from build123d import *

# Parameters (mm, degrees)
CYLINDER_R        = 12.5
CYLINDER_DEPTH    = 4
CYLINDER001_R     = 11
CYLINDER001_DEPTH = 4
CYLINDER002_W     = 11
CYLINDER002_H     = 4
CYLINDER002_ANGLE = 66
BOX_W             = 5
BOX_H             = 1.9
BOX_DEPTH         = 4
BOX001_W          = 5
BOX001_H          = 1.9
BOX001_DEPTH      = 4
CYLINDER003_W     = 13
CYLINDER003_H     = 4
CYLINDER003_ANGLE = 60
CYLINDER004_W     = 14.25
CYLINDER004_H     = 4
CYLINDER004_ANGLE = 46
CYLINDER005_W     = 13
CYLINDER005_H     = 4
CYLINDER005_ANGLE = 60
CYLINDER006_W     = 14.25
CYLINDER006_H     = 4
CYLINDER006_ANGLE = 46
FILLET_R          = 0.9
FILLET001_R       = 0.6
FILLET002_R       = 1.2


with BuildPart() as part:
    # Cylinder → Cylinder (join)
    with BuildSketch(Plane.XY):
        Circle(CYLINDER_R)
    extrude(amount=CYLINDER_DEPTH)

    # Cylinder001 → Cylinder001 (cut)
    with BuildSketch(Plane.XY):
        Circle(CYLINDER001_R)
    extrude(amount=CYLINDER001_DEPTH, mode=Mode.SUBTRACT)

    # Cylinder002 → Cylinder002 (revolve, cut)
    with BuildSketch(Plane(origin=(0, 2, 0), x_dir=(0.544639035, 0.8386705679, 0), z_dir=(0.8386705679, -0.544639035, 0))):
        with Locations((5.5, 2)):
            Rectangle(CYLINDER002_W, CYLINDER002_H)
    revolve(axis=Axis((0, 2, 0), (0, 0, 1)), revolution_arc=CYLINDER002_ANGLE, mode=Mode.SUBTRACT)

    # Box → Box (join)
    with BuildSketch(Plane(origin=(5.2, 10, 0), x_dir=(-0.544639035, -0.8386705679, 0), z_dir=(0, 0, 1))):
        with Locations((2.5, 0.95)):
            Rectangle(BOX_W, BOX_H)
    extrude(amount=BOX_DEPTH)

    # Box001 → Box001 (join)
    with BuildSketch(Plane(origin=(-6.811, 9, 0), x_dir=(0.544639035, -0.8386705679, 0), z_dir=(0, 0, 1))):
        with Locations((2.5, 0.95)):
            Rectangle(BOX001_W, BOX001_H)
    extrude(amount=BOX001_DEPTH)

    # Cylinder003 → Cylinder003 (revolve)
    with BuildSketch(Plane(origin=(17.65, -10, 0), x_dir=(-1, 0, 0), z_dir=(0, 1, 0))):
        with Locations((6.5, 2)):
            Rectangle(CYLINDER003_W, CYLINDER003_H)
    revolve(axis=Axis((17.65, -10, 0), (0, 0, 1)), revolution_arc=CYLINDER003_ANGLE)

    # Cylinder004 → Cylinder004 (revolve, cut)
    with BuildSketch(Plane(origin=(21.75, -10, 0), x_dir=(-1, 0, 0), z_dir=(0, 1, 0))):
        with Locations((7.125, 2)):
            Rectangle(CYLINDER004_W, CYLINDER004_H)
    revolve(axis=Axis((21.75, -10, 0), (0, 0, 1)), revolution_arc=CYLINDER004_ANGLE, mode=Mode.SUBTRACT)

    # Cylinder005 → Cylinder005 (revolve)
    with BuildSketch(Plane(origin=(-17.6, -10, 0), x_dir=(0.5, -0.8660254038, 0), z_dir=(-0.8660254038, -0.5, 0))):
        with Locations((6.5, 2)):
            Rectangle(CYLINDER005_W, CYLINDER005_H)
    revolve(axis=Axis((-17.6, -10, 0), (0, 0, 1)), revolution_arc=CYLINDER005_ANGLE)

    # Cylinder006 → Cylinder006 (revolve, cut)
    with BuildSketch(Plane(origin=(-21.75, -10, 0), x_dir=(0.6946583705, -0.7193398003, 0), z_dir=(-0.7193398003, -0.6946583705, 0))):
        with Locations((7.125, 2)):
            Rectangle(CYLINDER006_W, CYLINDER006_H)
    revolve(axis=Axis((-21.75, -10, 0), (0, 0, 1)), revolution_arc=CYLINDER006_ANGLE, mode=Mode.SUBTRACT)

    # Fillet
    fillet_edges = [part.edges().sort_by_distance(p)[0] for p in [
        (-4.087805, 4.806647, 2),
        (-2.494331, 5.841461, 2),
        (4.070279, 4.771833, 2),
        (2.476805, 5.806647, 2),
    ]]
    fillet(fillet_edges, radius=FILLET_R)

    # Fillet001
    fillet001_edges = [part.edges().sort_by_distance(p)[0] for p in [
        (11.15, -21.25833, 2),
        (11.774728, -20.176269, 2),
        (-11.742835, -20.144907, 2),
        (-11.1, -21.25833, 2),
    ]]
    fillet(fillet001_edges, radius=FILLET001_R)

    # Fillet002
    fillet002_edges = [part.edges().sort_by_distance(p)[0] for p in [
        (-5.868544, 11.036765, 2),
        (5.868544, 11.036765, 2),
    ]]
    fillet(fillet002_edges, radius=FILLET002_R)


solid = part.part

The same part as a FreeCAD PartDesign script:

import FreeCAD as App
import Part
import Sketcher
Q = App.Units.Quantity


def edges_at(feature, points):
    """Names of the edges that pass closest to the given points."""
    edges = feature.Shape.Edges
    near = lambda p: min(range(len(edges)), key=lambda i: edges[i].distToShape(Part.Vertex(*p))[0])
    return sorted({f"Edge{near(p) + 1}" for p in points})


def add_polygon(sketch, points):
    """Adds a closed chain of lines whose ends are joined by coincident constraints."""
    first, n = sketch.GeometryCount, len(points)
    for a, b in zip(points, points[1:] + points[:1]):
        sketch.addGeometry(Part.LineSegment(App.Vector(*a, 0), App.Vector(*b, 0)), False)
    for i in range(n):
        sketch.addConstraint(Sketcher.Constraint("Coincident", first + i, 2, first + (i + 1) % n, 1))

doc = App.newDocument("Part")
body = doc.addObject("PartDesign::Body", "Body")

sketch1 = body.newObject("Sketcher::SketchObject", "Sketch")
sketch1.AttachmentSupport = (doc.getObject("XY_Plane"), [""])
sketch1.MapMode = "FlatFace"
sketch1.addGeometry(Part.Circle(App.Vector(0, 0, 0), App.Vector(0, 0, 1), 12), False)
sketch1.addConstraint(Sketcher.Constraint("Coincident", 0, 3, -1, 1))
sketch1.addConstraint(Sketcher.Constraint("Diameter", 0, Q("25 mm")))
pad1 = body.newObject("PartDesign::Pad", "Pad")
pad1.Profile = sketch1
pad1.Length = 4

sketch2 = body.newObject("Sketcher::SketchObject", "Sketch001")
sketch2.AttachmentSupport = (doc.getObject("XY_Plane"), [""])
sketch2.MapMode = "FlatFace"
sketch2.addGeometry(Part.Circle(App.Vector(0, 0, 0), App.Vector(0, 0, 1), 11), False)
sketch2.addConstraint(Sketcher.Constraint("Coincident", 0, 3, -1, 1))
sketch2.addConstraint(Sketcher.Constraint("Diameter", 0, Q("22 mm")))
pocket1 = body.newObject("PartDesign::Pocket", "Pocket")
pocket1.Profile = sketch2
pocket1.Length = 4
pocket1.Reversed = True

sketch3 = body.newObject("Sketcher::SketchObject", "Sketch002")
sketch3.Placement = App.Placement(App.Vector(0, 2, 0), App.Rotation(App.Vector(0.544639035, 0.838670568, 0), App.Vector(0, 0, 1), App.Vector(0.838670568, -0.544639035, 0), "ZXY"))
add_polygon(sketch3, [(0, 4), (0, 0), (11, 0), (11, 4)])
sketch3.addConstraint(Sketcher.Constraint("Vertical", 0))
sketch3.addConstraint(Sketcher.Constraint("Horizontal", 1))
sketch3.addConstraint(Sketcher.Constraint("Vertical", 2))
sketch3.addConstraint(Sketcher.Constraint("Horizontal", 3))
sketch3.addConstraint(Sketcher.Constraint("Coincident", 0, 2, -1, 1))
sketch3.addConstraint(Sketcher.Constraint("DistanceX", 1, 1, 1, 2, Q("11 mm")))
sketch3.addConstraint(Sketcher.Constraint("DistanceY", 0, 2, 0, 1, Q("4 mm")))
groove = body.newObject("PartDesign::Groove", "Groove")
groove.Profile = sketch3
groove.ReferenceAxis = (sketch3, ["V_Axis"])
groove.Angle = 66

sketch4 = body.newObject("Sketcher::SketchObject", "Sketch003")
sketch4.AttachmentSupport = (doc.getObject("XY_Plane"), [""])
sketch4.MapMode = "FlatFace"
add_polygon(sketch4, [(6.8, 9), (5.2, 10), (2.5, 5.8), (4.1, 4.8)])
sketch4.addConstraint(Sketcher.Constraint("Perpendicular", 0, 1))
sketch4.addConstraint(Sketcher.Constraint("Perpendicular", 1, 2))
sketch4.addConstraint(Sketcher.Constraint("Perpendicular", 2, 3))
sketch4.addConstraint(Sketcher.Constraint("Angle", 0, Q("147 deg")))
sketch4.addConstraint(Sketcher.Constraint("Distance", 1, Q("5 mm")))
sketch4.addConstraint(Sketcher.Constraint("DistanceY", -1, 1, 0, 2, Q("10 mm")))
sketch4.addConstraint(Sketcher.Constraint("Distance", 0, Q("1.9 mm")))
sketch4.addConstraint(Sketcher.Constraint("DistanceX", -1, 1, 0, 2, Q("5.2 mm")))
pad2 = body.newObject("PartDesign::Pad", "Pad001")
pad2.Profile = sketch4
pad2.Length = 4

sketch5 = body.newObject("Sketcher::SketchObject", "Sketch004")
sketch5.AttachmentSupport = (doc.getObject("XY_Plane"), [""])
sketch5.MapMode = "FlatFace"
add_polygon(sketch5, [(-5.2, 10), (-6.8, 9), (-4.1, 4.8), (-2.5, 5.8)])
sketch5.addConstraint(Sketcher.Constraint("Perpendicular", 0, 1))
sketch5.addConstraint(Sketcher.Constraint("Perpendicular", 1, 2))
sketch5.addConstraint(Sketcher.Constraint("Perpendicular", 2, 3))
sketch5.addConstraint(Sketcher.Constraint("Angle", 0, Q("-147 deg")))
sketch5.addConstraint(Sketcher.Constraint("Distance", 1, Q("5 mm")))
sketch5.addConstraint(Sketcher.Constraint("DistanceY", -1, 1, 0, 2, Q("9 mm")))
sketch5.addConstraint(Sketcher.Constraint("Distance", 0, Q("1.9 mm")))
sketch5.addConstraint(Sketcher.Constraint("DistanceX", 0, 2, -1, 1, Q("6.811 mm")))
pad3 = body.newObject("PartDesign::Pad", "Pad002")
pad3.Profile = sketch5
pad3.Length = 4

sketch6 = body.newObject("Sketcher::SketchObject", "Sketch005")
sketch6.AttachmentSupport = (doc.getObject("XZ_Plane"), [""])
sketch6.MapMode = "FlatFace"
sketch6.AttachmentOffset = App.Placement(App.Vector(0, 0, 10), App.Rotation())
add_polygon(sketch6, [(17.6, 4), (17.6, 0), (4.7, 0), (4.7, 4)])
sketch6.addGeometry(Part.LineSegment(App.Vector(17.6, 0, 0), App.Vector(17.6, 4, 0)), True)
sketch6.addConstraint(Sketcher.Constraint("Vertical", 0))
sketch6.addConstraint(Sketcher.Constraint("Horizontal", 1))
sketch6.addConstraint(Sketcher.Constraint("Vertical", 2))
sketch6.addConstraint(Sketcher.Constraint("Horizontal", 3))
sketch6.addConstraint(Sketcher.Constraint("Vertical", 4))
sketch6.addConstraint(Sketcher.Constraint("Coincident", 4, 1, 0, 2))
sketch6.addConstraint(Sketcher.Constraint("PointOnObject", 0, 2, -1))
sketch6.addConstraint(Sketcher.Constraint("Horizontal", 2, 2, 4, 2))
sketch6.addConstraint(Sketcher.Constraint("DistanceX", 1, 2, 1, 1, Q("13 mm")))
sketch6.addConstraint(Sketcher.Constraint("DistanceY", 0, 2, 0, 1, Q("4 mm")))
sketch6.addConstraint(Sketcher.Constraint("DistanceX", -1, 1, 0, 2, Q("17.65 mm")))
revolution = body.newObject("PartDesign::Revolution", "Revolution")
revolution.Profile = sketch6
revolution.ReferenceAxis = (sketch6, ["Axis0"])
revolution.Angle = 60

sketch7 = body.newObject("Sketcher::SketchObject", "Sketch006")
sketch7.AttachmentSupport = (doc.getObject("XZ_Plane"), [""])
sketch7.MapMode = "FlatFace"
sketch7.AttachmentOffset = App.Placement(App.Vector(0, 0, 10), App.Rotation())
add_polygon(sketch7, [(21.8, 4), (21.8, 0), (7.5, 0), (7.5, 4)])
sketch7.addGeometry(Part.LineSegment(App.Vector(21.8, 0, 0), App.Vector(21.8, 4, 0)), True)
sketch7.addConstraint(Sketcher.Constraint("Vertical", 0))
sketch7.addConstraint(Sketcher.Constraint("Horizontal", 1))
sketch7.addConstraint(Sketcher.Constraint("Vertical", 2))
sketch7.addConstraint(Sketcher.Constraint("Horizontal", 3))
sketch7.addConstraint(Sketcher.Constraint("Vertical", 4))
sketch7.addConstraint(Sketcher.Constraint("Coincident", 4, 1, 0, 2))
sketch7.addConstraint(Sketcher.Constraint("PointOnObject", 0, 2, -1))
sketch7.addConstraint(Sketcher.Constraint("Horizontal", 2, 2, 4, 2))
sketch7.addConstraint(Sketcher.Constraint("DistanceY", 0, 2, 0, 1, Q("4 mm")))
sketch7.addConstraint(Sketcher.Constraint("DistanceX", 1, 2, 1, 1, Q("14.25 mm")))
sketch7.addConstraint(Sketcher.Constraint("DistanceX", -1, 1, 1, 2, Q("7.5 mm")))
groove2 = body.newObject("PartDesign::Groove", "Groove001")
groove2.Profile = sketch7
groove2.ReferenceAxis = (sketch7, ["Axis0"])
groove2.Angle = 46

sketch8 = body.newObject("Sketcher::SketchObject", "Sketch007")
sketch8.Placement = App.Placement(App.Vector(-17.6, -10, 0), App.Rotation(App.Vector(0.5, -0.866025404, 0), App.Vector(0, 0, 1), App.Vector(-0.866025404, -0.5, 0), "ZXY"))
add_polygon(sketch8, [(0, 4), (0, 0), (13, 0), (13, 4)])
sketch8.addConstraint(Sketcher.Constraint("Vertical", 0))
sketch8.addConstraint(Sketcher.Constraint("Horizontal", 1))
sketch8.addConstraint(Sketcher.Constraint("Vertical", 2))
sketch8.addConstraint(Sketcher.Constraint("Horizontal", 3))
sketch8.addConstraint(Sketcher.Constraint("Coincident", 0, 2, -1, 1))
sketch8.addConstraint(Sketcher.Constraint("DistanceX", 1, 1, 1, 2, Q("13 mm")))
sketch8.addConstraint(Sketcher.Constraint("DistanceY", 0, 2, 0, 1, Q("4 mm")))
revolution2 = body.newObject("PartDesign::Revolution", "Revolution001")
revolution2.Profile = sketch8
revolution2.ReferenceAxis = (sketch8, ["V_Axis"])
revolution2.Angle = 60

sketch9 = body.newObject("Sketcher::SketchObject", "Sketch008")
sketch9.Placement = App.Placement(App.Vector(-21.75, -10, 0), App.Rotation(App.Vector(0.69465837, -0.7193398, 0), App.Vector(0, 0, 0.999999999), App.Vector(-0.7193398, -0.69465837, 0), "ZXY"))
add_polygon(sketch9, [(0, 4), (0, 0), (14.2, 0), (14.2, 4)])
sketch9.addConstraint(Sketcher.Constraint("Vertical", 0))
sketch9.addConstraint(Sketcher.Constraint("Horizontal", 1))
sketch9.addConstraint(Sketcher.Constraint("Vertical", 2))
sketch9.addConstraint(Sketcher.Constraint("Horizontal", 3))
sketch9.addConstraint(Sketcher.Constraint("Coincident", 0, 2, -1, 1))
sketch9.addConstraint(Sketcher.Constraint("DistanceY", 0, 2, 0, 1, Q("4 mm")))
sketch9.addConstraint(Sketcher.Constraint("DistanceX", 1, 1, 1, 2, Q("14.25 mm")))
groove3 = body.newObject("PartDesign::Groove", "Groove002")
groove3.Profile = sketch9
groove3.ReferenceAxis = (sketch9, ["V_Axis"])
groove3.Angle = 46
doc.recompute()

fillet = body.newObject("PartDesign::Fillet", "Fillet")
fillet.Base = (groove3, edges_at(groove3, [
    (-4.088, 4.807, 2),
    (-2.494, 5.841, 2),
    (4.07, 4.772, 2),
    (2.477, 5.807, 2),
]))
fillet.Radius = 0.9
doc.recompute()

fillet2 = body.newObject("PartDesign::Fillet", "Fillet001")
fillet2.Base = (fillet, edges_at(fillet, [
    (11.15, -21.258, 2),
    (11.775, -20.176, 2),
    (-11.743, -20.145, 2),
    (-11.1, -21.258, 2),
]))
fillet2.Radius = 0.6
doc.recompute()

fillet3 = body.newObject("PartDesign::Fillet", "Fillet002")
fillet3.Base = (fillet2, edges_at(fillet2, [(-5.869, 11.037, 2), (5.869, 11.037, 2)]))
fillet3.Radius = 1.2

doc.recompute()
